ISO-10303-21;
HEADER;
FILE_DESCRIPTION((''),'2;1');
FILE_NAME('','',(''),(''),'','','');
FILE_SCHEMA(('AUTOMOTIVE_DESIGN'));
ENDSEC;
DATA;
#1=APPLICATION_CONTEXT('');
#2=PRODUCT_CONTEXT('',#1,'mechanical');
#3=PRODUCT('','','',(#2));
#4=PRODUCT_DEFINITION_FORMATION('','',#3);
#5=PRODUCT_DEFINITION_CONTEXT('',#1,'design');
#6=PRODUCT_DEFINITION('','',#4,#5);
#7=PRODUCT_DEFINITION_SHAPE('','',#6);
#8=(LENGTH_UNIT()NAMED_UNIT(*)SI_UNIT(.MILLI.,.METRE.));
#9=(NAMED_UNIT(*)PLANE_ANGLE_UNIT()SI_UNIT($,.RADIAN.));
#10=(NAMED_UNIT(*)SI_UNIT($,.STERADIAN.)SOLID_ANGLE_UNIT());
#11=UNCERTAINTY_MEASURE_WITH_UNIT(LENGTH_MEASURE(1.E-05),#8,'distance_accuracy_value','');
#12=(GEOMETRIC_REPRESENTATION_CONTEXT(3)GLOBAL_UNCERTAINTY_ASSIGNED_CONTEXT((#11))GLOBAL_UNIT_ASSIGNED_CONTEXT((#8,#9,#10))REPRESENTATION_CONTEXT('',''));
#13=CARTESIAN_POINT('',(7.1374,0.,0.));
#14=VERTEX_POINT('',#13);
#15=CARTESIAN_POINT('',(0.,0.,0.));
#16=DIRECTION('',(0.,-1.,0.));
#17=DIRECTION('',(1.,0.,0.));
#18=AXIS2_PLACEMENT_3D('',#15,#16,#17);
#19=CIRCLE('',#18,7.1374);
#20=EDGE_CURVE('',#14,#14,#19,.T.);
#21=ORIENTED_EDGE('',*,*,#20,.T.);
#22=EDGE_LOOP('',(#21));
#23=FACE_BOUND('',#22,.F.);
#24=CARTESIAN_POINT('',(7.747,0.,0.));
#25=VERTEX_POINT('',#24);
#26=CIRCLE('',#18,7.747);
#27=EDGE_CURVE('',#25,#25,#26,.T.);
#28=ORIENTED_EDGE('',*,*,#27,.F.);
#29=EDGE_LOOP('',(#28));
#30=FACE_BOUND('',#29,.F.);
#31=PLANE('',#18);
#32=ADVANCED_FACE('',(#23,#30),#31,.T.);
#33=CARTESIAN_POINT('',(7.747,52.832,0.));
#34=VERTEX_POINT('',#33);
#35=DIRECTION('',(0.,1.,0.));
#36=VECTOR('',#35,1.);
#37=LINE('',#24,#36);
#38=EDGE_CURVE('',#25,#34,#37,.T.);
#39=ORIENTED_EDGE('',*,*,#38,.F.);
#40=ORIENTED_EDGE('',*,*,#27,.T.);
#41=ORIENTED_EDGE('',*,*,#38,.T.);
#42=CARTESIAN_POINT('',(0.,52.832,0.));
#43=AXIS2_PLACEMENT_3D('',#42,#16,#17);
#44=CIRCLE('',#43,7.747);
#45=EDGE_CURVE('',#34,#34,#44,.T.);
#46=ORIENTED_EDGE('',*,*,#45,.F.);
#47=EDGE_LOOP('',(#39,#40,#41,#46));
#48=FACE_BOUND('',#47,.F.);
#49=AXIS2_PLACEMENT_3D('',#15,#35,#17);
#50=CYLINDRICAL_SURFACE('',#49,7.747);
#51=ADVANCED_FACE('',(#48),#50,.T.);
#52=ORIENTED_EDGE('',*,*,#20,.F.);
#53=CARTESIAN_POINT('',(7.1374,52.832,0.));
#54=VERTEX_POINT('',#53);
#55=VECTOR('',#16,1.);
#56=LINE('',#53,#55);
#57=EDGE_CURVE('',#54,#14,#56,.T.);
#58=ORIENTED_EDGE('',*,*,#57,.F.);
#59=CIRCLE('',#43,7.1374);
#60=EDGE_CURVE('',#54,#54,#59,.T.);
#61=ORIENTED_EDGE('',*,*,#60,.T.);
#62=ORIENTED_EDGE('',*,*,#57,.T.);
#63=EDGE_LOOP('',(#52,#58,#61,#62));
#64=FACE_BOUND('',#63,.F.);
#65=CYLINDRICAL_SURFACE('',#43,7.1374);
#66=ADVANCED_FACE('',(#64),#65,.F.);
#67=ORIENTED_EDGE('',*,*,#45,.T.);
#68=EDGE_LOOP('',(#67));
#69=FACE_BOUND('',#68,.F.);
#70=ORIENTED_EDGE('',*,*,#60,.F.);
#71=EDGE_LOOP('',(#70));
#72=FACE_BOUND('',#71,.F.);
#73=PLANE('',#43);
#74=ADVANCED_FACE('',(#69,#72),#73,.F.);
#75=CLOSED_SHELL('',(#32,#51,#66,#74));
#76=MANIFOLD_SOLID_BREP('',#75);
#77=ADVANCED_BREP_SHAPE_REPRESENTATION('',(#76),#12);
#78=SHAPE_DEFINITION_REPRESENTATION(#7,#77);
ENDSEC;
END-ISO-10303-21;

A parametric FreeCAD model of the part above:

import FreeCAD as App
import Part
import Sketcher
from FreeCAD import Vector
Q = App.Units.Quantity


def add_polygon(sketch, points):
    """Adds a closed chain of lines whose ends are joined by coincident constraints."""
    first, n = sketch.GeometryCount, len(points)
    for a, b in zip(points, points[1:] + points[:1]):
        sketch.addGeometry(Part.LineSegment(App.Vector(*a, 0), App.Vector(*b, 0)), False)
    for i in range(n):
        sketch.addConstraint(Sketcher.Constraint("Coincident", first + i, 2, first + (i + 1) % n, 1))

doc = App.newDocument("Part")
body = doc.addObject("PartDesign::Body", "Body")

# Sketch on XY plane
sketch1 = doc.addObject("Sketcher::SketchObject", "Sketch")
body.addObject(sketch1)
sketch1.AttachmentSupport = (doc.XY_Plane, [""])
sketch1.MapMode = "FlatFace"
add_polygon(sketch1, [(7.1374, 52.832), (7.1374, 0), (7.747, 0), (7.747, 52.832)])  # lines 0-3
sketch1.addConstraint([
    Sketcher.Constraint("Vertical", 0),
    Sketcher.Constraint("Horizontal", 1),
    Sketcher.Constraint("Vertical", 2),
    Sketcher.Constraint("Horizontal", 3),
    Sketcher.Constraint("PointOnObject", 0, 2, -1),
    Sketcher.Constraint("DistanceY", 0, 2, 0, 1, Q("2.08 in")),
    Sketcher.Constraint("DistanceX", 1, 1, 1, 2, Q("0.024 in")),
    Sketcher.Constraint("DistanceX", -1, 1, 0, 2, Q("0.281 in")),
])
revolution = doc.addObject("PartDesign::Revolution", "Revolution")
body.addObject(revolution)
revolution.Profile = sketch1
revolution.ReferenceAxis = (sketch1, ["V_Axis"])
revolution.Angle = 360

doc.recompute()
